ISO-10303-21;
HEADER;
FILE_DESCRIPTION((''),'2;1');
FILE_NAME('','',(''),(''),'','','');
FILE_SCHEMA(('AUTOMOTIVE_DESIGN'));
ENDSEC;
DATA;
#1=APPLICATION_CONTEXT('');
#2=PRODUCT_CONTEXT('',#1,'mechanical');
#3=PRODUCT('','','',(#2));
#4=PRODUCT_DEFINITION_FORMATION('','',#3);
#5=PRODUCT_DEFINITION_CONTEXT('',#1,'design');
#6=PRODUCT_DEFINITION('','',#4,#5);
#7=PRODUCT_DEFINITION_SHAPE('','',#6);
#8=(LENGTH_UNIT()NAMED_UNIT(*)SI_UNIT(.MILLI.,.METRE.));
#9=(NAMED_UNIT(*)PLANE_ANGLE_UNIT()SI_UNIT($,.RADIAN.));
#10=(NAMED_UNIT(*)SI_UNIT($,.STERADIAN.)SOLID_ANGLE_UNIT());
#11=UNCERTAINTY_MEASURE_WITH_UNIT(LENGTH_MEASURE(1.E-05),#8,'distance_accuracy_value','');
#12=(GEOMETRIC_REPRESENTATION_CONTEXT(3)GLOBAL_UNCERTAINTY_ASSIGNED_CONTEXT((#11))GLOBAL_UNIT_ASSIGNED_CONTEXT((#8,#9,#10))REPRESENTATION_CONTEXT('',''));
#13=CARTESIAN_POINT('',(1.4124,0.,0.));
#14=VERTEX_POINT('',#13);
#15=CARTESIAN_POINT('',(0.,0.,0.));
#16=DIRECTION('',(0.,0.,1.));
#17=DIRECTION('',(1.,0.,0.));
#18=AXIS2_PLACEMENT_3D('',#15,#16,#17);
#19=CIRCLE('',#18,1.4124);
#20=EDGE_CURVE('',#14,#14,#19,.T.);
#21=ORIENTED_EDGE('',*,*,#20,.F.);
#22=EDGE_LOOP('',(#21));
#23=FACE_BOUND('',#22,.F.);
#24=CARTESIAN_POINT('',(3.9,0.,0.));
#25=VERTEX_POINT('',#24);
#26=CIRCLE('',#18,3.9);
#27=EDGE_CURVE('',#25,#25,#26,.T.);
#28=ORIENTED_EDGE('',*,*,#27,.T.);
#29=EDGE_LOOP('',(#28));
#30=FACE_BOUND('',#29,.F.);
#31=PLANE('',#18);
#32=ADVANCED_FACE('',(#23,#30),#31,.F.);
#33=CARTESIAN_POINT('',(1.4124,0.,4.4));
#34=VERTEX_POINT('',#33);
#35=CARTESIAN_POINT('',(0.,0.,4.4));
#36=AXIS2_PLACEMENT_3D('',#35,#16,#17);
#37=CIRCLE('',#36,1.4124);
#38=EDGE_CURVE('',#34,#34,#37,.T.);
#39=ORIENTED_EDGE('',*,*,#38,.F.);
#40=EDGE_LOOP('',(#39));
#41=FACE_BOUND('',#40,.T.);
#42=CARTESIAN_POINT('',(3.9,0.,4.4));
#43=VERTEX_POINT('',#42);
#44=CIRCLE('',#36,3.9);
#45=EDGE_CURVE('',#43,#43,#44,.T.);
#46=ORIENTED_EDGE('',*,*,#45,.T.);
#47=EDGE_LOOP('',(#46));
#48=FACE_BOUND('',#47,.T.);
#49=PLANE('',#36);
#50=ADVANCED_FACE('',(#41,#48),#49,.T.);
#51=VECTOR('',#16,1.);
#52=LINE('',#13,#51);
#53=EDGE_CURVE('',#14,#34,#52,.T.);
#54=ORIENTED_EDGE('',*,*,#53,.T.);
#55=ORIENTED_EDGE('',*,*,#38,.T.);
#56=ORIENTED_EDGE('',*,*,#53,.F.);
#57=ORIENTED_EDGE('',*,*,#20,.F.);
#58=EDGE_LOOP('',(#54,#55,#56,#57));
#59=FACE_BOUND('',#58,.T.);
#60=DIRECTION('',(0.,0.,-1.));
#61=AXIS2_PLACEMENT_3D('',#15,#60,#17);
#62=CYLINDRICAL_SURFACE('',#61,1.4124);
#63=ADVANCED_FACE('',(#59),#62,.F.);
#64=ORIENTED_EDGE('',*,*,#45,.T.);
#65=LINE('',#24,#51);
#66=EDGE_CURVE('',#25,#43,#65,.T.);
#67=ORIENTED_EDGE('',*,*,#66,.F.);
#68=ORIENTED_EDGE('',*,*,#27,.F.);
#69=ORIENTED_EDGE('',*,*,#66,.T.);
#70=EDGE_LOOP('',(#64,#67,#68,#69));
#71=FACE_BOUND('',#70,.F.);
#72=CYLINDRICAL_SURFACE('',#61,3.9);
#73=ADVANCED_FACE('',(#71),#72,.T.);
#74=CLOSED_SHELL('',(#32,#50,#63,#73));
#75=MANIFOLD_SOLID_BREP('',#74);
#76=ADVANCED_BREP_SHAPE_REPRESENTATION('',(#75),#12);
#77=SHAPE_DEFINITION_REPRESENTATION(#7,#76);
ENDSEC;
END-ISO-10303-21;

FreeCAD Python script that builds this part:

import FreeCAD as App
import Part
import Sketcher

V = App.Vector

doc = App.newDocument("Part")
body = doc.addObject("PartDesign::Body", "Body")

sketch1 = body.newObject("Sketcher::SketchObject", "Sketch")
sketch1.AttachmentSupport = (doc.getObject("XY_Plane"), [""])
sketch1.MapMode = "FlatFace"
sketch1.addGeometry([
    Part.Circle(V(0, 0, 0), V(0, 0, 1), 3.9),
    Part.Circle(V(0, 0, 0), V(0, 0, 1), 1.4),
], False)
sketch1.addConstraint([
    Sketcher.Constraint("Coincident", 0, 3, -1, 1),
    Sketcher.Constraint("Coincident", 1, 3, -1, 1),
    Sketcher.Constraint("Diameter", 0, 7.8),
    Sketcher.Constraint("Diameter", 1, 2.8248),
])
pad1 = body.newObject("PartDesign::Pad", "Pad")
pad1.Profile = sketch1
pad1.Length = 4.4

doc.recompute()
